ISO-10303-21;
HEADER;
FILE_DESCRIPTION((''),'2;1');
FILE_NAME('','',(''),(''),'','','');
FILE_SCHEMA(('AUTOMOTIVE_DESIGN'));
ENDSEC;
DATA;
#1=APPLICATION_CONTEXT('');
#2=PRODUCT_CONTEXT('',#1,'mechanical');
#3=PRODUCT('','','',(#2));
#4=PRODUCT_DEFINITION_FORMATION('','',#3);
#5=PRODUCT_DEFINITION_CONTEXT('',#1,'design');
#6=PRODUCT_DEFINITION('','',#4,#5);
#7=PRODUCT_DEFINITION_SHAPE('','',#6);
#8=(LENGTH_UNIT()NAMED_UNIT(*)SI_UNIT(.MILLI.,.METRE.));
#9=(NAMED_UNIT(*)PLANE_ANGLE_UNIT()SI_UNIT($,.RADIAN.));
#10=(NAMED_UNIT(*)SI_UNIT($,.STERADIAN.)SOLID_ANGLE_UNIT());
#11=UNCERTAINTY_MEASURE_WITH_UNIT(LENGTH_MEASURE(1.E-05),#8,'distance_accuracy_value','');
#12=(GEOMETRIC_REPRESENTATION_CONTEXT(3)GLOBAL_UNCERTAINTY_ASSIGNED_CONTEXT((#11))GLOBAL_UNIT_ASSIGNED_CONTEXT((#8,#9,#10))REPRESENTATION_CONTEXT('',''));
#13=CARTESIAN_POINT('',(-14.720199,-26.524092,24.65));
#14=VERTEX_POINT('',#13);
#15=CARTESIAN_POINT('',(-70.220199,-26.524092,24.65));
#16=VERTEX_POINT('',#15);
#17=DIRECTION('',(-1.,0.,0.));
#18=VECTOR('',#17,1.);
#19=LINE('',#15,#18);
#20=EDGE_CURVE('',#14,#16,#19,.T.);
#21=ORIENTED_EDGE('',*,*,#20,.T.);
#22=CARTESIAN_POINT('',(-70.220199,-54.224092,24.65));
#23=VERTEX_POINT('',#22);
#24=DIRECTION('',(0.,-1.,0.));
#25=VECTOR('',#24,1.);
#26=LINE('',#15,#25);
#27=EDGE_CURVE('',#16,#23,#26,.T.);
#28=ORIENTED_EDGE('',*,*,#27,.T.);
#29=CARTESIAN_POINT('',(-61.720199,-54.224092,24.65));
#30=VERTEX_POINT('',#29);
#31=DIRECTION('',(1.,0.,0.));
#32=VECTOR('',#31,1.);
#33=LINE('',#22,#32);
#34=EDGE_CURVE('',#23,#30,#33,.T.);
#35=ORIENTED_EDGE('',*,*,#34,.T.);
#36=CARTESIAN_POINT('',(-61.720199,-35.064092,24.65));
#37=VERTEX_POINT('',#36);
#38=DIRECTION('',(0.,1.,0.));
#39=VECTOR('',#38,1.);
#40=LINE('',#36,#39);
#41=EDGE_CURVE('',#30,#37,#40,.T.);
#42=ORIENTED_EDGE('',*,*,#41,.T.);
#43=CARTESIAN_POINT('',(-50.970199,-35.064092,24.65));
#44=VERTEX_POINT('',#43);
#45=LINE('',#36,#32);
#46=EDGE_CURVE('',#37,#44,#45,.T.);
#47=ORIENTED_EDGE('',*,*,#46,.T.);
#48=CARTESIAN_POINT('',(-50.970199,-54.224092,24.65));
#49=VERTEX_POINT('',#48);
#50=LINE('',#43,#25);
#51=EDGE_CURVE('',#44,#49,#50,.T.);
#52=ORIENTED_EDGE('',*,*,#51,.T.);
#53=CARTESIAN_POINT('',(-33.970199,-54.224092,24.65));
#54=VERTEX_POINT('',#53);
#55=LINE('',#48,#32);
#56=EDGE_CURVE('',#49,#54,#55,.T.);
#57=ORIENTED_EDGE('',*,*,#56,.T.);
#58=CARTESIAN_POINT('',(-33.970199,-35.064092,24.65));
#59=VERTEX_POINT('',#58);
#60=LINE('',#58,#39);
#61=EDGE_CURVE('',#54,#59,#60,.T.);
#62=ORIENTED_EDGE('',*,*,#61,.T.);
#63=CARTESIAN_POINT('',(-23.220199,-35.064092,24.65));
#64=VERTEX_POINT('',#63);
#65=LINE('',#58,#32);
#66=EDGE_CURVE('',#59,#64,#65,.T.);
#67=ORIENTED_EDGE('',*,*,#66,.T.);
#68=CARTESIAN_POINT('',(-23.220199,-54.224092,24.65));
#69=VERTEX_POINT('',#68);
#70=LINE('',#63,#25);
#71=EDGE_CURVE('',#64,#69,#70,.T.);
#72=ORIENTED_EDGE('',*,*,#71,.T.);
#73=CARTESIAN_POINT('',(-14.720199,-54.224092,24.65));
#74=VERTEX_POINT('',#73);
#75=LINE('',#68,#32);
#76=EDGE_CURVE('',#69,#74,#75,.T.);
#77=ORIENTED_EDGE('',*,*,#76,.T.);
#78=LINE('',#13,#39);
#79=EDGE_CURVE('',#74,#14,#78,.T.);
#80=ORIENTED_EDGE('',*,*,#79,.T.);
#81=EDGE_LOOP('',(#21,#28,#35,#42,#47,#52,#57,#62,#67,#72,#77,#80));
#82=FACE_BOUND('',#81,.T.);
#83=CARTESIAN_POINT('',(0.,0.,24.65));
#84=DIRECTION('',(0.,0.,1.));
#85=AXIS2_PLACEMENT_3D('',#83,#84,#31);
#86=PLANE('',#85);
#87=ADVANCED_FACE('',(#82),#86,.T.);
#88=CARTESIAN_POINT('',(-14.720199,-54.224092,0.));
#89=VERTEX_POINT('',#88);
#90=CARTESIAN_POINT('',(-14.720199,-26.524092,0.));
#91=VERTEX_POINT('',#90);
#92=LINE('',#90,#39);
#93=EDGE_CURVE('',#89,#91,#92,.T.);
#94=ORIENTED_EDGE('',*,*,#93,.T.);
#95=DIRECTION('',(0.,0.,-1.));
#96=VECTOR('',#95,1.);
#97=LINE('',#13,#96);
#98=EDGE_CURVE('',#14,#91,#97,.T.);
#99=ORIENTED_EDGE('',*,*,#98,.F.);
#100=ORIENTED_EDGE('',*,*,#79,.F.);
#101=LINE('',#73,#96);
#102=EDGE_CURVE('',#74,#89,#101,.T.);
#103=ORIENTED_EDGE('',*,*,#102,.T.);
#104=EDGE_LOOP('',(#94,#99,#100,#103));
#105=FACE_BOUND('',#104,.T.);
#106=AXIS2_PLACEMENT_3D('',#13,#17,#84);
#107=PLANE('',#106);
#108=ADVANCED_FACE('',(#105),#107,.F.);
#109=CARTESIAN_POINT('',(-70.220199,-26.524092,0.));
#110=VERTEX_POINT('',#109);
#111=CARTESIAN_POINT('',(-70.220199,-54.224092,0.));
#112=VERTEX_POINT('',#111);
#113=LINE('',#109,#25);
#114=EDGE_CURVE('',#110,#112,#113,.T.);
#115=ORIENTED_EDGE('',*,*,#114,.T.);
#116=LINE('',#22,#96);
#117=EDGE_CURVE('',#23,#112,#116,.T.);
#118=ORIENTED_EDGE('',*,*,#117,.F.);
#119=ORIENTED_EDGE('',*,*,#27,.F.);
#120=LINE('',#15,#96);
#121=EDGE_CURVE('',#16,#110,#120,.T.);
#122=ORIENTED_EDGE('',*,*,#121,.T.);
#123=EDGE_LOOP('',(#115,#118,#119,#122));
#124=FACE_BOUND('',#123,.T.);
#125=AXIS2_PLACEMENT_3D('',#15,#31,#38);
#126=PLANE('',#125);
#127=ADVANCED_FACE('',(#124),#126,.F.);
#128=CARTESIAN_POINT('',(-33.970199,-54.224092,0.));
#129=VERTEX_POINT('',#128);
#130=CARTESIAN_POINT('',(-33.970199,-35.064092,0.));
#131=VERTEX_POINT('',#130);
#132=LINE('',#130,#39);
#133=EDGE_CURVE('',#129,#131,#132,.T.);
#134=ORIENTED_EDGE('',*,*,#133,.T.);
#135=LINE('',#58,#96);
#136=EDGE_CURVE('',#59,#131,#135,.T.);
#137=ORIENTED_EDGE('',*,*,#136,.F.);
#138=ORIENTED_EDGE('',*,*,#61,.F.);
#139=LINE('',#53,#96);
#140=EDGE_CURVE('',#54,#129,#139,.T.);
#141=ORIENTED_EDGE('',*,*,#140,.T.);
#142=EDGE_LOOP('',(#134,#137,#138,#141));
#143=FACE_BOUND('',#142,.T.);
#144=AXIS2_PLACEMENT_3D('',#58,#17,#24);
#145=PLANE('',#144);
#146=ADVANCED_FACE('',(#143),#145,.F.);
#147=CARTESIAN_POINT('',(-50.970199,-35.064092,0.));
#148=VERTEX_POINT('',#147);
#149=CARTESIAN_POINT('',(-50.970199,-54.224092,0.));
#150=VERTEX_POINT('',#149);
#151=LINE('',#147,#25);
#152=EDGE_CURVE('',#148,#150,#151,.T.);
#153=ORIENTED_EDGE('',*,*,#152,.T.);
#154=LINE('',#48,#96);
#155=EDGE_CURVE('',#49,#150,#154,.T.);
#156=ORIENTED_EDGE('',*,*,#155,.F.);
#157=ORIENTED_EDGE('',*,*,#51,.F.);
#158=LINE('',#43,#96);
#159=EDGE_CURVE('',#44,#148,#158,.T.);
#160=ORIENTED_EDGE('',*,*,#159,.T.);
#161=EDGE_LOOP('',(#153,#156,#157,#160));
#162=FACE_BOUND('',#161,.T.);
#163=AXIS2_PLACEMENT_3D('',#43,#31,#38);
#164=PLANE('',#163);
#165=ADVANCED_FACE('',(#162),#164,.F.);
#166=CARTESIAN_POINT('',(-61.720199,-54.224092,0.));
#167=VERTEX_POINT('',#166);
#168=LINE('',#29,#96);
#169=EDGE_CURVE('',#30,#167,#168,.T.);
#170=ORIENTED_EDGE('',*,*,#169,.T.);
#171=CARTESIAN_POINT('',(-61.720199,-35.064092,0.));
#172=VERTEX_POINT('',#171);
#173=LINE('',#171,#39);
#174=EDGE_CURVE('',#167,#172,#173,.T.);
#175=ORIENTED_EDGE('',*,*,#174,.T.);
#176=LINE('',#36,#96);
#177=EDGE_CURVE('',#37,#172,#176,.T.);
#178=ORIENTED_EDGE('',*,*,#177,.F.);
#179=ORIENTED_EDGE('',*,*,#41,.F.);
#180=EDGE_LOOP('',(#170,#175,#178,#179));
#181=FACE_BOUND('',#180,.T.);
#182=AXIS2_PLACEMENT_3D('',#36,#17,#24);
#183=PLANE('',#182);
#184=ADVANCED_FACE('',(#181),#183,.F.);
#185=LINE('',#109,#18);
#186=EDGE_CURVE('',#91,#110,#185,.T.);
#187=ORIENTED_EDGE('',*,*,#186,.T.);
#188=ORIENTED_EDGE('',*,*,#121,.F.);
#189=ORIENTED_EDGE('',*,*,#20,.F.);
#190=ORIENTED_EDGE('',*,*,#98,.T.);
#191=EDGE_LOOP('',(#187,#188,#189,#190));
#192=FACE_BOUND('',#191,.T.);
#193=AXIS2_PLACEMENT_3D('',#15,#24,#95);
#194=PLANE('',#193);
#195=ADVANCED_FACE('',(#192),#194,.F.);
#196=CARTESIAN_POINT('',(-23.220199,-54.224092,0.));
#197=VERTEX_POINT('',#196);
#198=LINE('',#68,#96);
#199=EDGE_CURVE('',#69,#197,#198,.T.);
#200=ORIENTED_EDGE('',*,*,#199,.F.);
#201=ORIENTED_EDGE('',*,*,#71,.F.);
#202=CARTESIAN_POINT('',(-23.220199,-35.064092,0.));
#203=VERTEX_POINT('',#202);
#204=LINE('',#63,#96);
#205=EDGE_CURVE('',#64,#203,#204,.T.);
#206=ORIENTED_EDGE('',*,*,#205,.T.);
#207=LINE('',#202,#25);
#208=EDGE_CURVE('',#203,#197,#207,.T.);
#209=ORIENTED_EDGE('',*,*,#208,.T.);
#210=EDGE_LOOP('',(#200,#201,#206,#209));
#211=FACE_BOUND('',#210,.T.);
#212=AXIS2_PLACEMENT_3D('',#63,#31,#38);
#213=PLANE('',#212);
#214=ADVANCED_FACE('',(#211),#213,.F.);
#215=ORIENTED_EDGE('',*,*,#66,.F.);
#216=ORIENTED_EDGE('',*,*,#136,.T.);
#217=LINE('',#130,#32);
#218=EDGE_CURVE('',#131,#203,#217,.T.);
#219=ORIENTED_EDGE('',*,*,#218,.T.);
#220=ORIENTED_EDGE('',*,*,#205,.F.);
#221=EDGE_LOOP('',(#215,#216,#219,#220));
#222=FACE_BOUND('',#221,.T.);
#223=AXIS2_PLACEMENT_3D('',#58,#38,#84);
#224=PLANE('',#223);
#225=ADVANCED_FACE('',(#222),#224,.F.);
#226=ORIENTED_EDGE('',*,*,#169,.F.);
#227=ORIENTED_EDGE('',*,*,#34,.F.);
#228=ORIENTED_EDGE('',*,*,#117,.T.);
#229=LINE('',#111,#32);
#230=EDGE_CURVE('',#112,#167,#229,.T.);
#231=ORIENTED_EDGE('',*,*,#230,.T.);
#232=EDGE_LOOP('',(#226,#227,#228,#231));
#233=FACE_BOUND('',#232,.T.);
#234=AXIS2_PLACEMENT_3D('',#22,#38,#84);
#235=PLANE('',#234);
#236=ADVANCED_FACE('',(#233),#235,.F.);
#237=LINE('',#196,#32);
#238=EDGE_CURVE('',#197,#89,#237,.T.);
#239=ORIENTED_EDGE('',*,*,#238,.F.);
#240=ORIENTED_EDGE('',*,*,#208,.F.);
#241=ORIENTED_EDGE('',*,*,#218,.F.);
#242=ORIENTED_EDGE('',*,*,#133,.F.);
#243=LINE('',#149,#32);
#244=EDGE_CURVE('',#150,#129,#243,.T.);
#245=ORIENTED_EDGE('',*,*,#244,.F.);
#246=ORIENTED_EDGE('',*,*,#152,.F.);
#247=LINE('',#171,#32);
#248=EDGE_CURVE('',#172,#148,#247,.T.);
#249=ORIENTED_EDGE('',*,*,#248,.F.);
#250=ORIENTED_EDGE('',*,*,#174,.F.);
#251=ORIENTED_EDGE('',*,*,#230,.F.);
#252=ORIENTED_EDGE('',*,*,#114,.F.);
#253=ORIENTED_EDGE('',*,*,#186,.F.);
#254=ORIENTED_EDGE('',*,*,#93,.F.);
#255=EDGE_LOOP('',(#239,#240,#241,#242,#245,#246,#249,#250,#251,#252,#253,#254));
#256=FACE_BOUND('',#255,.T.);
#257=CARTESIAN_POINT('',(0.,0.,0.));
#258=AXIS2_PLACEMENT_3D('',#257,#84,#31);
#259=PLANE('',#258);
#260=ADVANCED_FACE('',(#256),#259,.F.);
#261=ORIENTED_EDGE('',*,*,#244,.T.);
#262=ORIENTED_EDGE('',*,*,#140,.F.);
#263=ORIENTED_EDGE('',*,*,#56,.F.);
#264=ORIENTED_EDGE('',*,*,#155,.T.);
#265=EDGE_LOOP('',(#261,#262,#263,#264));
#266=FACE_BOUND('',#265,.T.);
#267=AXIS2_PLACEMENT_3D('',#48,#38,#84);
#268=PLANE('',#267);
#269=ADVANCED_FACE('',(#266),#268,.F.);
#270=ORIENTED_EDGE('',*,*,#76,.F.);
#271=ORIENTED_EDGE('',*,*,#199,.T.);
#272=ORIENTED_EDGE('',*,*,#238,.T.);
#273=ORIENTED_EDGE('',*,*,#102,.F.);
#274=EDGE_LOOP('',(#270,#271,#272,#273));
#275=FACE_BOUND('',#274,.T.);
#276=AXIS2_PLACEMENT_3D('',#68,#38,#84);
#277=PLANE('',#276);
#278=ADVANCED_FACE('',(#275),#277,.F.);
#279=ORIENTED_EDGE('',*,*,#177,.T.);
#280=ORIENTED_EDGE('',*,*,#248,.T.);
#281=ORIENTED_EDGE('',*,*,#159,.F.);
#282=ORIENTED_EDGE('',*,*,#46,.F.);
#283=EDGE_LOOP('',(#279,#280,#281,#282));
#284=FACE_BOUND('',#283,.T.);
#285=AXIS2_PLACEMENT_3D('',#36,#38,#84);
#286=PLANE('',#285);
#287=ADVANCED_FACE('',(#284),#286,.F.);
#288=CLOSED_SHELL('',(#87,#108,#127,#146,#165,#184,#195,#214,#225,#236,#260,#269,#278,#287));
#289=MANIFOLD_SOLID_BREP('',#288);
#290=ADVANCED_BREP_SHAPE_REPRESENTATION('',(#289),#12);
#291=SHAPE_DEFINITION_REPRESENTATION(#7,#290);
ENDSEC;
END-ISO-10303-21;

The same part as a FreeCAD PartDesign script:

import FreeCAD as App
import Part
import Sketcher


def add_polygon(sketch, points):
    """Adds a closed chain of lines whose ends are joined by coincident constraints."""
    first, n = sketch.GeometryCount, len(points)
    for a, b in zip(points, points[1:] + points[:1]):
        sketch.addGeometry(Part.LineSegment(App.Vector(*a, 0), App.Vector(*b, 0)), False)
    for i in range(n):
        sketch.addConstraint(Sketcher.Constraint("Coincident", first + i, 2, first + (i + 1) % n, 1))

doc = App.newDocument("Part")
params = doc.addObject("Spreadsheet::Sheet", "Params")
for row, (alias, value) in enumerate([
    ("sketch1_width", "17 mm"),
    ("sketch1_width2", "8.5 mm"),
    ("sketch1_width3", "55.5 mm"),
    ("sketch1_height", "27.7 mm"),
    ("sketch1_height2", "19.16 mm"),
    ("pad1_length", "24.65 mm"),
], start=1):
    params.set(f"A{row}", alias)
    params.set(f"B{row}", "=" + value)
    params.setAlias(f"B{row}", alias)

body = doc.addObject("PartDesign::Body", "Body")

# Sketch on XY plane
sketch1 = body.newObject("Sketcher::SketchObject", "Sketch")
sketch1.AttachmentSupport = (doc.getObject("XY_Plane"), [""])
sketch1.MapMode = "FlatFace"
add_polygon(sketch1, [(-23.220199, -35.064092), (-23.220199, -54.224092), (-14.720199, -54.224092), (-14.720199, -26.524092), (-70.220199, -26.524092), (-70.220199, -54.224092), (-61.720199, -54.224092), (-61.720199, -35.064092), (-50.970199, -35.064092), (-50.970199, -54.224092), (-33.970199, -54.224092), (-33.970199, -35.064092)])  # lines 0-11
sketch1.addConstraint([
    Sketcher.Constraint("Vertical", 0),
    Sketcher.Constraint("Horizontal", 1),
    Sketcher.Constraint("Vertical", 2),
    Sketcher.Constraint("Horizontal", 3),
    Sketcher.Constraint("Vertical", 4),
    Sketcher.Constraint("Horizontal", 5),
    Sketcher.Constraint("Vertical", 6),
    Sketcher.Constraint("Horizontal", 7),
    Sketcher.Constraint("Vertical", 8),
    Sketcher.Constraint("Horizontal", 9),
    Sketcher.Constraint("Vertical", 10),
    Sketcher.Constraint("Horizontal", 11),
    Sketcher.Constraint("Horizontal", 1, 2, 4, 2),
    Sketcher.Constraint("Horizontal", 5, 2, 8, 2),
    Sketcher.Constraint("Horizontal", 7, 2, 10, 2),
    Sketcher.Constraint("Equal", 1, 5),
    Sketcher.Constraint("Equal", 7, 11),
    Sketcher.Constraint("DistanceX", 9, 1, 9, 2, 17.0),
    Sketcher.Constraint("DistanceX", 1, 1, 1, 2, 8.5),
    Sketcher.Constraint("DistanceX", 3, 2, 3, 1, 55.5),
    Sketcher.Constraint("DistanceY", 2, 1, 2, 2, 27.7),
    Sketcher.Constraint("DistanceY", 0, 2, 0, 1, 19.16),
    Sketcher.Constraint("DistanceX", 0, 2, -1, 1, 23.220199),
    Sketcher.Constraint("DistanceY", 0, 2, -1, 1, 54.224092),
])
sketch1.setExpression("Constraints[29]", "Params.sketch1_width")
sketch1.setExpression("Constraints[30]", "Params.sketch1_width2")
sketch1.setExpression("Constraints[31]", "Params.sketch1_width3")
sketch1.setExpression("Constraints[32]", "Params.sketch1_height")
sketch1.setExpression("Constraints[33]", "Params.sketch1_height2")
pad1 = body.newObject("PartDesign::Pad", "Pad")
pad1.Profile = sketch1
pad1.setExpression("Length", "Params.pad1_length")

doc.recompute()
